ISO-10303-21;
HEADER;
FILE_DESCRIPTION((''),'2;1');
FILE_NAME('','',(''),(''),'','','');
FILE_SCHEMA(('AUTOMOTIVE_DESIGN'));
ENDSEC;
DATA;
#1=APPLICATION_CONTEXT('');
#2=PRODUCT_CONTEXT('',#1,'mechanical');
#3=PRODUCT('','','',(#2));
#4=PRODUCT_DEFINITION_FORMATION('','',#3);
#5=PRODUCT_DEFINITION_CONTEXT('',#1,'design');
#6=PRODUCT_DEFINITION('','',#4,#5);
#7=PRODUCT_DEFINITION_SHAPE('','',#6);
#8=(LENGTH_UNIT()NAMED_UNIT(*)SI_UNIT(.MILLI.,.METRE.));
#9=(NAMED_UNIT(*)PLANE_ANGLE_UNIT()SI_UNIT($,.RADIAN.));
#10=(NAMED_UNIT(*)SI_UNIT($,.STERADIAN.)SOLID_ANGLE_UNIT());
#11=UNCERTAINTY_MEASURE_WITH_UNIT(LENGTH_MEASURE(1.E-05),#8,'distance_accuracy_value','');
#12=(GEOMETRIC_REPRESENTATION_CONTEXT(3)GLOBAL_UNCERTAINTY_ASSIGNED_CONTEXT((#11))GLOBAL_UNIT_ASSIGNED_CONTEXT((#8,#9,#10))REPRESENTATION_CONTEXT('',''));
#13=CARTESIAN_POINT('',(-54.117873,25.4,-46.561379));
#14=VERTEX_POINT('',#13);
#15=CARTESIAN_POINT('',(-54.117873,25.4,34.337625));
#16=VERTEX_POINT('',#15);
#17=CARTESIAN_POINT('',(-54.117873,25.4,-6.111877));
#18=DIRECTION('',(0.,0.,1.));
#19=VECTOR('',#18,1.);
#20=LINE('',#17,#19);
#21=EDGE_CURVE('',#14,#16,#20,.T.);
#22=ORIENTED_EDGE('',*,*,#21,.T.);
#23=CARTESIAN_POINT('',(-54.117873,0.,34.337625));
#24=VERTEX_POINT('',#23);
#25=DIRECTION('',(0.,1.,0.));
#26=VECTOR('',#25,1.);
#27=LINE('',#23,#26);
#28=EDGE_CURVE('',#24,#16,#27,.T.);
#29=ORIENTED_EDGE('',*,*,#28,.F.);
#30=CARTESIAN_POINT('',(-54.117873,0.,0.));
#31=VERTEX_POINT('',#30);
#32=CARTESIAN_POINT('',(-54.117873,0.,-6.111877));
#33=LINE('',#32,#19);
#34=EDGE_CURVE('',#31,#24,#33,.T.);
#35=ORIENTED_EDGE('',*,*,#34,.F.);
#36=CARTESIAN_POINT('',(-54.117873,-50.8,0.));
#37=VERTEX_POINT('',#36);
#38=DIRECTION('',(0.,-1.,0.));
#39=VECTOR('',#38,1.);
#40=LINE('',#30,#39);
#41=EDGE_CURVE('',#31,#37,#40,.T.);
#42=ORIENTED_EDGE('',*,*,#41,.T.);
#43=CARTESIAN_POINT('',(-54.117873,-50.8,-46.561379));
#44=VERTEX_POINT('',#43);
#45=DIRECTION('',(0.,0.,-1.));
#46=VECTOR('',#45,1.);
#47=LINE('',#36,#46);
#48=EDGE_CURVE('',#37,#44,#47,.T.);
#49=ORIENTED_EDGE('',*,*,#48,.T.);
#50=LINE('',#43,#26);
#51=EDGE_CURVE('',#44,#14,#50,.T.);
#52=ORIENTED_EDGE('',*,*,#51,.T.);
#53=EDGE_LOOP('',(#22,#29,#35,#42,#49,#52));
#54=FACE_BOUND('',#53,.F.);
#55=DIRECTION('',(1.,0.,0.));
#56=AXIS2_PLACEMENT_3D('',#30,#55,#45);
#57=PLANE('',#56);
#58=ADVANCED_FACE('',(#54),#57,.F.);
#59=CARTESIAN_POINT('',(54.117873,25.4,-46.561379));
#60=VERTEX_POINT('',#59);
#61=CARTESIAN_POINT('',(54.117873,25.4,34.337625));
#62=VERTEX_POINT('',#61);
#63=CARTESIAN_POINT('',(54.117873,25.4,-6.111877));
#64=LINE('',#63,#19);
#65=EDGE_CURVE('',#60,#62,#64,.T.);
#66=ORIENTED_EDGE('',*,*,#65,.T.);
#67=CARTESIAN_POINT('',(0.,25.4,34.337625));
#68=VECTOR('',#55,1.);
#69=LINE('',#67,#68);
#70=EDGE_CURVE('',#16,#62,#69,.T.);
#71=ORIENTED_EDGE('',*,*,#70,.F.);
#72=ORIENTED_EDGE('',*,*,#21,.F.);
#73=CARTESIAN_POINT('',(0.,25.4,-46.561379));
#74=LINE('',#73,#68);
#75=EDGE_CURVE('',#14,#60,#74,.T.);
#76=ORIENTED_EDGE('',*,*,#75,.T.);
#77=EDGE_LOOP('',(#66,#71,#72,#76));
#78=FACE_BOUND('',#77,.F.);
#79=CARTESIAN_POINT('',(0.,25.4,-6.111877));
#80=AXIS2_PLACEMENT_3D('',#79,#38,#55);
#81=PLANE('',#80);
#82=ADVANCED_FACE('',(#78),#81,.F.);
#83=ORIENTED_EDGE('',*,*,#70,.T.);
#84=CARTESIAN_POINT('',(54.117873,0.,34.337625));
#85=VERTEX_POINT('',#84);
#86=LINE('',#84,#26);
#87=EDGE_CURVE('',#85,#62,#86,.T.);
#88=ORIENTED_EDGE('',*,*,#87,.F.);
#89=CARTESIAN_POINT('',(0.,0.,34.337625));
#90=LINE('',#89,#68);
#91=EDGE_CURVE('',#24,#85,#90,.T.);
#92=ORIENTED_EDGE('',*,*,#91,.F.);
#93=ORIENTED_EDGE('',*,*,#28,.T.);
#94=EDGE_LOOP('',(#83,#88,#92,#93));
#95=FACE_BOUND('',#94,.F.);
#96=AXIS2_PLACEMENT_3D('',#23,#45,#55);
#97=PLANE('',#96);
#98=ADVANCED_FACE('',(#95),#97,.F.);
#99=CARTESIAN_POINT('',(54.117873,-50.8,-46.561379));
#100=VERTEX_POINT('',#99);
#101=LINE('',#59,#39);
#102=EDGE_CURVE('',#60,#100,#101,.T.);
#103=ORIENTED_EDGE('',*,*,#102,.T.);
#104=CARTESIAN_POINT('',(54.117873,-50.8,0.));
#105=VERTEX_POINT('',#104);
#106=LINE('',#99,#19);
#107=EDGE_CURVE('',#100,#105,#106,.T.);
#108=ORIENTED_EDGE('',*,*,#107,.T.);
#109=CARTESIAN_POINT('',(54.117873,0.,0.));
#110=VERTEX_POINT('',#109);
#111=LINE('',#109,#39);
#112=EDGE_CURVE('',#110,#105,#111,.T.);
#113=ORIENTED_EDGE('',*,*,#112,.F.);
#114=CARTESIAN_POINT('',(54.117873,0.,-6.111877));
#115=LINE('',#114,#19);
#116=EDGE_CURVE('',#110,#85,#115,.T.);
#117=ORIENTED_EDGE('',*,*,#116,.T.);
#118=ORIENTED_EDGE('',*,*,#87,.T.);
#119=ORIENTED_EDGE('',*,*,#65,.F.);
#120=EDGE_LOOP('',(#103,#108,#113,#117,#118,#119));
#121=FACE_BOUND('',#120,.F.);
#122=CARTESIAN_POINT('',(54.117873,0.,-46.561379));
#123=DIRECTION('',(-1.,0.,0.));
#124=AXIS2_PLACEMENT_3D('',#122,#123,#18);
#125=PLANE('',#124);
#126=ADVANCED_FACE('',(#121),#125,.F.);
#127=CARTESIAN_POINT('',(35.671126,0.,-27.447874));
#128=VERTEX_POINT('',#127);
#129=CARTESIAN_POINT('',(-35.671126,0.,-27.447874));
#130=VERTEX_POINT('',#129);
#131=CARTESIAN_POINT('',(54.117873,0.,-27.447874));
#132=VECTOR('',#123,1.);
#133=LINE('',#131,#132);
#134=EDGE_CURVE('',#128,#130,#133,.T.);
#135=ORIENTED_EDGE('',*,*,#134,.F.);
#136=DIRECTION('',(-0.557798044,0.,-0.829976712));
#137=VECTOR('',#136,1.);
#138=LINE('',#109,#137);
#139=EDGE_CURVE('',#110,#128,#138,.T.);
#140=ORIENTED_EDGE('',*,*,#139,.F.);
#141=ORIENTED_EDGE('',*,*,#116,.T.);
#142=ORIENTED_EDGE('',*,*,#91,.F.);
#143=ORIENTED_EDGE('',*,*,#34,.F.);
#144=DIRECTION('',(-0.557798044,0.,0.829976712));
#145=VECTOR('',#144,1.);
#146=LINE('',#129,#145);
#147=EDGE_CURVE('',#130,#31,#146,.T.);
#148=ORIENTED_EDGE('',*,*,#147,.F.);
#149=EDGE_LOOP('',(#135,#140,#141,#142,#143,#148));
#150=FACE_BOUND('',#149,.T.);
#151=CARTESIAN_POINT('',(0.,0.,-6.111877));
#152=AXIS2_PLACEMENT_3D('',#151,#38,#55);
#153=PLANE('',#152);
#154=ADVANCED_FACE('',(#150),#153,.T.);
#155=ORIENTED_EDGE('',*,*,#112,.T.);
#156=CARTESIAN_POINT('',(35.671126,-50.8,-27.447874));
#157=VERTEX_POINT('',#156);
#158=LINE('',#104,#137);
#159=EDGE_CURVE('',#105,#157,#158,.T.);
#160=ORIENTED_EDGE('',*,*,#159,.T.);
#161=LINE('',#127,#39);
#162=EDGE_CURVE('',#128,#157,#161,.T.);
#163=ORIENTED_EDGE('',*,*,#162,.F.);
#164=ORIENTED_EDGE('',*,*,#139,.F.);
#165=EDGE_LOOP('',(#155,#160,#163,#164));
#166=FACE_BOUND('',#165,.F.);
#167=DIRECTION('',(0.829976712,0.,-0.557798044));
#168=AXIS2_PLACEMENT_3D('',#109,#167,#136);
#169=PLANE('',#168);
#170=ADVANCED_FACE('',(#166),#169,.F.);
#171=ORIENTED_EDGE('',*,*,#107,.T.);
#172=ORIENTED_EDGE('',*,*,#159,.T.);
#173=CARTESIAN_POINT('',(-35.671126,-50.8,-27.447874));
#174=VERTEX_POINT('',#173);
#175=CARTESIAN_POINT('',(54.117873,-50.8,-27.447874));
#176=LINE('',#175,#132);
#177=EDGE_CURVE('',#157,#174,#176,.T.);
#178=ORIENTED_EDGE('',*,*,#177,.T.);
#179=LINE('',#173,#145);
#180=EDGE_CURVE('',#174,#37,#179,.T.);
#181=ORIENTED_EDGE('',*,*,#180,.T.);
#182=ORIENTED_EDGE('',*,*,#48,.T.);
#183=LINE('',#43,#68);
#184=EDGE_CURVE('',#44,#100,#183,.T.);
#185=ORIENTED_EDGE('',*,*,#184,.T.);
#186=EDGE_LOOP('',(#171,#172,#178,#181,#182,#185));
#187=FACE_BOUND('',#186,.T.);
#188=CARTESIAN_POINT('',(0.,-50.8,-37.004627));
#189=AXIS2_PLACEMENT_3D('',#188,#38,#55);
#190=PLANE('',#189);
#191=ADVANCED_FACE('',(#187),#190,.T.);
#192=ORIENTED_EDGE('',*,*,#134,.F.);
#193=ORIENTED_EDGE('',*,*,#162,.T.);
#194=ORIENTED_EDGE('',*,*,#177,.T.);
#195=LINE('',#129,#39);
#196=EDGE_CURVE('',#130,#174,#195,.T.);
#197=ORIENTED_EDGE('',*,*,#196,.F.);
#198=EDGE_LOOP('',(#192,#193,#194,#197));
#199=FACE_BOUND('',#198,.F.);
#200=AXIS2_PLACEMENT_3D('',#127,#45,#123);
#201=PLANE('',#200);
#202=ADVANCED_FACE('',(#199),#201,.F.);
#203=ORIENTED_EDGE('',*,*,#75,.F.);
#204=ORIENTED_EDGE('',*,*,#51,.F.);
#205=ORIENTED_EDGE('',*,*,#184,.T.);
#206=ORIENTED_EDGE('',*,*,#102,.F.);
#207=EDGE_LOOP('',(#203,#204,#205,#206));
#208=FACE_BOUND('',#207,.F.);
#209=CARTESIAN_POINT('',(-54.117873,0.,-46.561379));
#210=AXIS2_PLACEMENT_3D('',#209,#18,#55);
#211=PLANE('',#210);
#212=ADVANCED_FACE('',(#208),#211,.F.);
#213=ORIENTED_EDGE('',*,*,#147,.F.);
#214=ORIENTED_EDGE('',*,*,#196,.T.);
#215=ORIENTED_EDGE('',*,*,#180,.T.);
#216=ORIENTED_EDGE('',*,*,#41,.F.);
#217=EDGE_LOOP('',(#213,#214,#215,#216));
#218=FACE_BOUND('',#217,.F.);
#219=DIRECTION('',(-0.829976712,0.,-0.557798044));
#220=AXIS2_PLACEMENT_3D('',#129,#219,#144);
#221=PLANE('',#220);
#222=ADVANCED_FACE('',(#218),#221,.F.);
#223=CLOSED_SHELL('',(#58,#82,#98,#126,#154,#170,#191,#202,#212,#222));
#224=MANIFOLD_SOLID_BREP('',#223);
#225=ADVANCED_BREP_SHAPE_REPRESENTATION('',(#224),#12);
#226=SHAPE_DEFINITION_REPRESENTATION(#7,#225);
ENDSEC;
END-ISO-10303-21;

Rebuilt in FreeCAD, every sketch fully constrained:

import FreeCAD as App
import Part
import Sketcher

V = App.Vector
Q = App.Units.Quantity

doc = App.newDocument("Part")
body = doc.addObject("PartDesign::Body", "Body")

# Sketch on XZ plane
sketch1 = body.newObject("Sketcher::SketchObject", "Sketch")
sketch1.AttachmentSupport = (doc.getObject("XZ_Plane"), [""])
sketch1.MapMode = "FlatFace"
sketch1.addGeometry([
    Part.LineSegment(V(-54, 34, 0), V(-54, -47, 0)),
    Part.LineSegment(V(-54, -47, 0), V(54, -47, 0)),
    Part.LineSegment(V(54, -47, 0), V(54, 34, 0)),
    Part.LineSegment(V(54, 34, 0), V(-54, 34, 0)),
], False)
sketch1.addConstraint([
    Sketcher.Constraint("Coincident", 0, 2, 1, 1),
    Sketcher.Constraint("Coincident", 1, 2, 2, 1),
    Sketcher.Constraint("Coincident", 2, 2, 3, 1),
    Sketcher.Constraint("Coincident", 3, 2, 0, 1),
    Sketcher.Constraint("Vertical", 0),
    Sketcher.Constraint("Horizontal", 1),
    Sketcher.Constraint("Vertical", 2),
    Sketcher.Constraint("Horizontal", 3),
    Sketcher.Constraint("DistanceY", 0, 2, 0, 1, Q("3.1850002 in")),
    Sketcher.Constraint("DistanceX", 1, 1, 1, 2, Q("108.235746 mm")),
    Sketcher.Constraint("DistanceY", 0, 2, -1, 1, Q("46.561379 mm")),
    Sketcher.Constraint("DistanceX", 0, 2, -1, 1, Q("54.117873 mm")),
])
pad1 = body.newObject("PartDesign::Pad", "Pad")
pad1.Profile = sketch1
pad1.Length = Q("1 in")
pad1.Reversed = True

# Sketch on XZ plane
sketch2 = body.newObject("Sketcher::SketchObject", "Sketch001")
sketch2.AttachmentSupport = (doc.getObject("XZ_Plane"), [""])
sketch2.MapMode = "FlatFace"
sketch2.addGeometry([
    Part.LineSegment(V(-54, -47, 0), V(54, -47, 0)),  # 0
    Part.LineSegment(V(54, -47, 0), V(54, 0, 0)),  # 1
    Part.LineSegment(V(54, 0, 0), V(36, -27, 0)),  # 2
    Part.LineSegment(V(36, -27, 0), V(-36, -27, 0)),  # 3
    Part.LineSegment(V(-36, -27, 0), V(-54, 0, 0)),  # 4
    Part.LineSegment(V(-54, 0, 0), V(-54, -47, 0)),  # 5
], False)
sketch2.addConstraint([
    Sketcher.Constraint("Coincident", 0, 2, 1, 1),
    Sketcher.Constraint("Coincident", 1, 2, 2, 1),
    Sketcher.Constraint("Coincident", 2, 2, 3, 1),
    Sketcher.Constraint("Coincident", 3, 2, 4, 1),
    Sketcher.Constraint("Coincident", 4, 2, 5, 1),
    Sketcher.Constraint("Coincident", 5, 2, 0, 1),
    Sketcher.Constraint("Horizontal", 0),
    Sketcher.Constraint("Vertical", 1),
    Sketcher.Constraint("Horizontal", 3),
    Sketcher.Constraint("Vertical", 5),
    Sketcher.Constraint("Symmetric", 1, 2, 4, 2, -1, 1),
    Sketcher.Constraint("PointOnObject", 1, 2, -1),
    Sketcher.Constraint("Equal", 2, 4),
    Sketcher.Constraint("DistanceX", 3, 2, 0, 2, Q("3.535 in")),
    Sketcher.Constraint("DistanceY", 0, 2, 2, 2, Q("0.7525002 in")),
    Sketcher.Constraint("DistanceX", 3, 2, 3, 1, Q("71.342252 mm")),
    Sketcher.Constraint("DistanceY", 1, 1, 1, 2, Q("46.561379 mm")),
])
pad2 = body.newObject("PartDesign::Pad", "Pad001")
pad2.Profile = sketch2
pad2.Length = Q("2 in")

doc.recompute()
